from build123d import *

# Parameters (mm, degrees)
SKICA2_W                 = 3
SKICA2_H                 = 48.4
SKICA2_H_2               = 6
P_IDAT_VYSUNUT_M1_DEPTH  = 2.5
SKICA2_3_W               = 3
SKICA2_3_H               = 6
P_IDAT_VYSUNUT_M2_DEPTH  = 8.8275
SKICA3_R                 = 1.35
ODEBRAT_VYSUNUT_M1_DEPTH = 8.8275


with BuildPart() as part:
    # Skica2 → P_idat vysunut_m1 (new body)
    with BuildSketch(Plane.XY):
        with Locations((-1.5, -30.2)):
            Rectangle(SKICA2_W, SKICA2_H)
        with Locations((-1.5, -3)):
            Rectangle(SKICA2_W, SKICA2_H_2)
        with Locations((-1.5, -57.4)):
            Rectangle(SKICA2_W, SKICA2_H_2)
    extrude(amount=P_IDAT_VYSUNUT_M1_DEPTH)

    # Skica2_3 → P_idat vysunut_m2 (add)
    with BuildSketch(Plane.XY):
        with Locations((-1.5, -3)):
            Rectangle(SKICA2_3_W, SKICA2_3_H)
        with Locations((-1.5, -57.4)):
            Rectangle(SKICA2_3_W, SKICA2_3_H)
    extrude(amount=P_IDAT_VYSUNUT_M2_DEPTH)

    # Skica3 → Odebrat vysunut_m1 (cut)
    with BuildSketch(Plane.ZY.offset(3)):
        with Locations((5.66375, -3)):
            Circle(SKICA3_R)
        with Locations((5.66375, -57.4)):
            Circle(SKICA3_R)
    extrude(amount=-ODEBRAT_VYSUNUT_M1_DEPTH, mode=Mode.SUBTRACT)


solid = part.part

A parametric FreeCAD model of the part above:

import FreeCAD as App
import Part
import Sketcher

V = App.Vector


def add_polygon(sketch, points):
    """Adds a closed chain of lines whose ends are joined by coincident constraints."""
    first, n = sketch.GeometryCount, len(points)
    for a, b in zip(points, points[1:] + points[:1]):
        sketch.addGeometry(Part.LineSegment(App.Vector(*a, 0), App.Vector(*b, 0)), False)
    for i in range(n):
        sketch.addConstraint(Sketcher.Constraint("Coincident", first + i, 2, first + (i + 1) % n, 1))

doc = App.newDocument("Part")
params = doc.addObject("Spreadsheet::Sheet", "Params")
for row, (alias, value) in enumerate([
    ("sketch1_width", "3 mm"),
    ("sketch1_height", "60.4 mm"),
    ("pad1_length", "2.5 mm"),
    ("sketch2_width", "3 mm"),
    ("sketch2_height", "6 mm"),
    ("pad2_length", "8.8275 mm"),
    ("sketch3_diameter", "2.7 mm"),
    ("pocket1_length", "8.8275 mm"),
], start=1):
    params.set(f"A{row}", alias)
    params.set(f"B{row}", "=" + value)
    params.setAlias(f"B{row}", alias)

body = doc.addObject("PartDesign::Body", "Body")

sketch1 = body.newObject("Sketcher::SketchObject", "Sketch")
sketch1.AttachmentSupport = (doc.getObject("XY_Plane"), [""])
sketch1.MapMode = "FlatFace"
add_polygon(sketch1, [(0, 0), (-3, 0), (-3, -60.4), (0, -60.4)])
sketch1.addConstraint([
    Sketcher.Constraint("Horizontal", 0),
    Sketcher.Constraint("Vertical", 1),
    Sketcher.Constraint("Horizontal", 2),
    Sketcher.Constraint("Vertical", 3),
    Sketcher.Constraint("Coincident", 3, 2, -1, 1),
    Sketcher.Constraint("DistanceX", 0, 2, 0, 1, 3.0),
    Sketcher.Constraint("DistanceY", 1, 2, 1, 1, 60.4),
])
sketch1.setExpression("Constraints[9]", "Params.sketch1_width")
sketch1.setExpression("Constraints[10]", "Params.sketch1_height")
pad1 = body.newObject("PartDesign::Pad", "Pad")
pad1.Profile = sketch1
pad1.setExpression("Length", "Params.pad1_length")

sketch2 = body.newObject("Sketcher::SketchObject", "Sketch001")
sketch2.AttachmentSupport = (doc.getObject("XY_Plane"), [""])
sketch2.MapMode = "FlatFace"
add_polygon(sketch2, [(-3, 0), (-3, -6), (0, -6), (0, 0)])
add_polygon(sketch2, [(-3, -54.4), (-3, -60.4), (0, -60.4), (0, -54.4)])
sketch2.addConstraint([
    Sketcher.Constraint("Vertical", 0),
    Sketcher.Constraint("Horizontal", 1),
    Sketcher.Constraint("Vertical", 2),
    Sketcher.Constraint("Horizontal", 3),
    Sketcher.Constraint("Vertical", 4),
    Sketcher.Constraint("Horizontal", 5),
    Sketcher.Constraint("Vertical", 6),
    Sketcher.Constraint("Horizontal", 7),
    Sketcher.Constraint("Coincident", 2, 2, -1, 1),
    Sketcher.Constraint("PointOnObject", 5, 2, -2),
    Sketcher.Constraint("Vertical", 3, 2, 4, 2),
    Sketcher.Constraint("Equal", 2, 4),
    Sketcher.Constraint("DistanceX", 1, 1, 1, 2, 3.0),
    Sketcher.Constraint("DistanceY", 0, 2, 0, 1, 6.0),
    Sketcher.Constraint("DistanceY", 4, 2, -1, 1, 60.4),
])
sketch2.setExpression("Constraints[20]", "Params.sketch2_width")
sketch2.setExpression("Constraints[21]", "Params.sketch2_height")
pad2 = body.newObject("PartDesign::Pad", "Pad001")
pad2.Profile = sketch2
pad2.setExpression("Length", "Params.pad2_length")

sketch3 = body.newObject("Sketcher::SketchObject", "Sketch002")
sketch3.AttachmentSupport = (doc.getObject("YZ_Plane"), [""])
sketch3.MapMode = "FlatFace"
sketch3.AttachmentOffset = App.Placement(V(0, 0, -3), App.Rotation())
sketch3.addGeometry([
    Part.Circle(V(-3, 5.66375, 0), V(0, 0, 1), 1.35),
    Part.Circle(V(-57.4, 5.66375, 0), V(0, 0, 1), 1.35),
], False)
sketch3.addConstraint([
    Sketcher.Constraint("Equal", 0, 1),
    Sketcher.Constraint("Horizontal", 0, 3, 1, 3),
    Sketcher.Constraint("Diameter", 0, 2.7),
    Sketcher.Constraint("DistanceX", 0, 3, -1, 1, 3.0),
    Sketcher.Constraint("DistanceX", 1, 3, -1, 1, 57.4),
    Sketcher.Constraint("DistanceY", -1, 1, 0, 3, 5.66375),
])
sketch3.setExpression("Constraints[2]", "Params.sketch3_diameter")
pocket1 = body.newObject("PartDesign::Pocket", "Pocket")
pocket1.Profile = sketch3
pocket1.setExpression("Length", "Params.pocket1_length")
pocket1.Reversed = True

doc.recompute()
